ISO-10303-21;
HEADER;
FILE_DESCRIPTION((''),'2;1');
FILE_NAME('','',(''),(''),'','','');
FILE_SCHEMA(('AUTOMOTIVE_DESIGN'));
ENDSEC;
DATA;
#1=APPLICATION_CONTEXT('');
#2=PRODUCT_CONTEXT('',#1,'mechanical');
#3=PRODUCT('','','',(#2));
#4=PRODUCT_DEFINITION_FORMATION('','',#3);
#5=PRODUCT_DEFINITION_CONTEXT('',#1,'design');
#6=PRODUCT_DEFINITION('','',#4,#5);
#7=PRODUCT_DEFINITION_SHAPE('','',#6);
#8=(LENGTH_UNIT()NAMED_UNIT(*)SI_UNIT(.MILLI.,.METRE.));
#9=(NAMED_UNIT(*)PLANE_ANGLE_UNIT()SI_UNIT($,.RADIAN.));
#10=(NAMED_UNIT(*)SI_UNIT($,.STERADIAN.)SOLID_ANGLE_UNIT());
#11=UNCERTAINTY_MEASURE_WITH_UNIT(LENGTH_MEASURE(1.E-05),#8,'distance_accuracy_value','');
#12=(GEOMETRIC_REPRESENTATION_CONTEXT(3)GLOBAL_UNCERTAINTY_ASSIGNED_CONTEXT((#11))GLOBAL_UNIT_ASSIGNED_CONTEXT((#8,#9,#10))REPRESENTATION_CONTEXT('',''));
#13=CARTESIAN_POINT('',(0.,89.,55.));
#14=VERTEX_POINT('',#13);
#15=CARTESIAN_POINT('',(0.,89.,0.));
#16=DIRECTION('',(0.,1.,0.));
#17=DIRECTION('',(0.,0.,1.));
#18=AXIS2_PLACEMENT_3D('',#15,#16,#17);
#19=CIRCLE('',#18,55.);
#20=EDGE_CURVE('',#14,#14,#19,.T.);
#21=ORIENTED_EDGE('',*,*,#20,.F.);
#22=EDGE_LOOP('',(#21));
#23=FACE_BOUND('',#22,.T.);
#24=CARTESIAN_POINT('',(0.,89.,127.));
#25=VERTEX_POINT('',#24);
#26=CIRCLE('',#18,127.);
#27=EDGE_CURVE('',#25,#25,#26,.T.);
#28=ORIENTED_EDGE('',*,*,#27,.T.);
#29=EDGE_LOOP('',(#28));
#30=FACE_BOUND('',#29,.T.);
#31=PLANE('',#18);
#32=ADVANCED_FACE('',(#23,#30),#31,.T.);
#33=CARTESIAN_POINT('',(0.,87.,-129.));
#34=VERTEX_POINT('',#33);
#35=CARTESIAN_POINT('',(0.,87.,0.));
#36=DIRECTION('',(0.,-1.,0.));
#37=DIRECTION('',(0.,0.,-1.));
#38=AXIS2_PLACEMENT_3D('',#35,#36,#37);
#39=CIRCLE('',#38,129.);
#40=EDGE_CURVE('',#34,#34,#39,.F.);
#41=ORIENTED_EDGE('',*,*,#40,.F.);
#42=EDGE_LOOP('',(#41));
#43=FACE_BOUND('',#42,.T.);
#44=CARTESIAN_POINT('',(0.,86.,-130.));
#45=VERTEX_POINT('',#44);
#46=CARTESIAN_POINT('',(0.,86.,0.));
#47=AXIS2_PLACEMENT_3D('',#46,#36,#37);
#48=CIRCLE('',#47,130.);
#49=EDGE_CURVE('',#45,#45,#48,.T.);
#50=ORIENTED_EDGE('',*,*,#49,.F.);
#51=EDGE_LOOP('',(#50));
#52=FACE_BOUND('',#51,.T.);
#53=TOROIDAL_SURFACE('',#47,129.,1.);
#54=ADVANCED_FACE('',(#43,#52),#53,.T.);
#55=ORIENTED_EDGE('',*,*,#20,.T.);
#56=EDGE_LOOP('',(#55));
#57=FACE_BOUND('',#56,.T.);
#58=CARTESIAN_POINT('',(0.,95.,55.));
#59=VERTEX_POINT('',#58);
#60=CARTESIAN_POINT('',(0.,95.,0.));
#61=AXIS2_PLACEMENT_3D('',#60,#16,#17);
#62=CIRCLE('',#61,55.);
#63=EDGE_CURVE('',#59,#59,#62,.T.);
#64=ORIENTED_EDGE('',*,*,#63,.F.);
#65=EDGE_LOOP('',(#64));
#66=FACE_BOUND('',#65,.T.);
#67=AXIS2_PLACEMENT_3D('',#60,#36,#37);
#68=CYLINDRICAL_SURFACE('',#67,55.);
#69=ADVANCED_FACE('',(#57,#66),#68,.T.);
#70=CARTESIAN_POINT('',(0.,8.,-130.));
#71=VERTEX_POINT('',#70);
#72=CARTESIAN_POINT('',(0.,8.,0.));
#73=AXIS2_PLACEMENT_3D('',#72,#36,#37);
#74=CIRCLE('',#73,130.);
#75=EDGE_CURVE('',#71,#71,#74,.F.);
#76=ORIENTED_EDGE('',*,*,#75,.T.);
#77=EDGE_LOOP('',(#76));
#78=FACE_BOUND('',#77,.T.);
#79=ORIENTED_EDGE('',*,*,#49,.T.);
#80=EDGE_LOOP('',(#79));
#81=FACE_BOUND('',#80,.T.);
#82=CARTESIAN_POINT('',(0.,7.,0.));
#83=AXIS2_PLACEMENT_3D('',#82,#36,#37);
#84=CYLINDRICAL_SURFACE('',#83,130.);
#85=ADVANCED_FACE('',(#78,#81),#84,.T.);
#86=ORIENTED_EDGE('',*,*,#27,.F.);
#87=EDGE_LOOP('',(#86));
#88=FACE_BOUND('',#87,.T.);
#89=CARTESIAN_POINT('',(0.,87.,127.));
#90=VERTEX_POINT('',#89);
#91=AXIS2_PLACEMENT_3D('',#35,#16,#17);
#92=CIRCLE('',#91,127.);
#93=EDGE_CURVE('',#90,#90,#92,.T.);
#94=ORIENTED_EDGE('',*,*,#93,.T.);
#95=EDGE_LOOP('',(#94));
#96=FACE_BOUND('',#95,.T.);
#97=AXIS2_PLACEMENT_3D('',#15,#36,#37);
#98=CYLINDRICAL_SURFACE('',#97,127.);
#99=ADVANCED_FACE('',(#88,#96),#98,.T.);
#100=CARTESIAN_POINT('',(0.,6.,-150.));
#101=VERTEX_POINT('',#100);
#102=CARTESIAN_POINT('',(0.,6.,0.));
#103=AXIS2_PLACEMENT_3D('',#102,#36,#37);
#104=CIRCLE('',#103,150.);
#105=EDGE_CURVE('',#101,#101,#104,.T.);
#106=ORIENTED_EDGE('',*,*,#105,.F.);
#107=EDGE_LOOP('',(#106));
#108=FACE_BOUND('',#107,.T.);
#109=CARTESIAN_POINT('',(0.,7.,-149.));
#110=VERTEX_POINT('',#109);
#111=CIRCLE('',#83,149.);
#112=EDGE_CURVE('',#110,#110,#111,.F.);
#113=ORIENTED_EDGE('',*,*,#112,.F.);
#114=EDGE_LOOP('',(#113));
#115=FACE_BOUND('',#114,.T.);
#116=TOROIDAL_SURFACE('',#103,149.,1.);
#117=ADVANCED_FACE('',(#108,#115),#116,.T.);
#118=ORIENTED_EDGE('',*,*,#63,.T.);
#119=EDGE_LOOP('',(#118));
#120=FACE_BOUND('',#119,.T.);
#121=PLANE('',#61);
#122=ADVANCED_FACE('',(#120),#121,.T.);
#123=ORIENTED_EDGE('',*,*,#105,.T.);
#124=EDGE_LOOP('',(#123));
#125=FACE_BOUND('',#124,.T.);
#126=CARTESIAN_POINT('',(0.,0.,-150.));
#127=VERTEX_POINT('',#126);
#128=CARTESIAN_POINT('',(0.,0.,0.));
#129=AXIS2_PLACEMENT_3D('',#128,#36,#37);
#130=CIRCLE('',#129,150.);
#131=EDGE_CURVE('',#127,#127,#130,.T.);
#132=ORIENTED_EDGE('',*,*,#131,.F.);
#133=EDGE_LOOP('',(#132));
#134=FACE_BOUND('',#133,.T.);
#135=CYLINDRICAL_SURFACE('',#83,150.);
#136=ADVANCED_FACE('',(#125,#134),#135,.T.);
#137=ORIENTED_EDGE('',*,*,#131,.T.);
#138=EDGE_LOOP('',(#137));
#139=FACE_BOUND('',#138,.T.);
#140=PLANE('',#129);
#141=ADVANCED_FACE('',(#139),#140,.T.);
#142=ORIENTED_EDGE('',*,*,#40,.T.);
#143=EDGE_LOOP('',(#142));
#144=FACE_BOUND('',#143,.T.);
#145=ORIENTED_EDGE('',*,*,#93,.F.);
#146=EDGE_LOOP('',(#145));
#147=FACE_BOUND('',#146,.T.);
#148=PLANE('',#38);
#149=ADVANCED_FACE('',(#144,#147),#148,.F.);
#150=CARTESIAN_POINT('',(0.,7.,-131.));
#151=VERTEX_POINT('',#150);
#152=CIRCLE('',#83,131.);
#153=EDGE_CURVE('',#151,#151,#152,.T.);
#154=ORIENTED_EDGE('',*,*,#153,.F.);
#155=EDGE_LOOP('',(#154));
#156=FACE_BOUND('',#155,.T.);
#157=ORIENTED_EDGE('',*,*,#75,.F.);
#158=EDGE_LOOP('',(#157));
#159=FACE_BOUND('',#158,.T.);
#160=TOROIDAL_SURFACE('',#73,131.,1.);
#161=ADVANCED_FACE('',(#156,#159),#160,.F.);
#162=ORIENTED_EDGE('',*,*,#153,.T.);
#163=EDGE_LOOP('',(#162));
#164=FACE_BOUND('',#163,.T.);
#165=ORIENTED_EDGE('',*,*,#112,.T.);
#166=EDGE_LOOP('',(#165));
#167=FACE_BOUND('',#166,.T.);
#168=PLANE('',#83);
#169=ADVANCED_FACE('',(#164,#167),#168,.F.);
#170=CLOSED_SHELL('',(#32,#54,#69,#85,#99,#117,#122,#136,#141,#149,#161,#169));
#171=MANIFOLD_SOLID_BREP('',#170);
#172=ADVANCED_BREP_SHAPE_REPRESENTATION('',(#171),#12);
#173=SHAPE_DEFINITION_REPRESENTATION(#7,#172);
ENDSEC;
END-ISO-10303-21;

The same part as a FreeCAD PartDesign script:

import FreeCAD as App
import Part
import Sketcher

V = App.Vector
Q = App.Units.Quantity


def edges_at(feature, points):
    """Names of the edges that pass closest to the given points."""
    edges = feature.Shape.Edges
    near = lambda p: min(range(len(edges)), key=lambda i: edges[i].distToShape(Part.Vertex(*p))[0])
    return sorted({f"Edge{near(p) + 1}" for p in points})


def add_polygon(sketch, points):
    """Adds a closed chain of lines whose ends are joined by coincident constraints."""
    first, n = sketch.GeometryCount, len(points)
    for a, b in zip(points, points[1:] + points[:1]):
        sketch.addGeometry(Part.LineSegment(App.Vector(*a, 0), App.Vector(*b, 0)), False)
    for i in range(n):
        sketch.addConstraint(Sketcher.Constraint("Coincident", first + i, 2, first + (i + 1) % n, 1))

doc = App.newDocument("Part")
body = doc.addObject("PartDesign::Body", "Body")

# Sketch on XY plane
sketch1 = body.newObject("Sketcher::SketchObject", "Sketch")
sketch1.AttachmentSupport = (doc.getObject("XY_Plane"), [""])
sketch1.MapMode = "FlatFace"
add_polygon(sketch1, [(-150, 7), (-150, 0), (0, 0), (0, 87), (-130, 87), (-130, 7)])  # lines 0-5
sketch1.addConstraint([
    Sketcher.Constraint("Vertical", 0),
    Sketcher.Constraint("Horizontal", 1),
    Sketcher.Constraint("Vertical", 2),
    Sketcher.Constraint("Horizontal", 3),
    Sketcher.Constraint("Vertical", 4),
    Sketcher.Constraint("Horizontal", 5),
    Sketcher.Constraint("Coincident", 1, 2, -1, 1),
    Sketcher.Constraint("DistanceX", 1, 1, 1, 2, Q("150 mm")),
    Sketcher.Constraint("DistanceX", 3, 2, 3, 1, Q("130 mm")),
    Sketcher.Constraint("DistanceY", 0, 2, 0, 1, Q("7 mm")),
    Sketcher.Constraint("DistanceY", 2, 1, 2, 2, Q("87 mm")),
])
revolution = body.newObject("PartDesign::Revolution", "Revolution")
revolution.Profile = sketch1
revolution.ReferenceAxis = (sketch1, ["V_Axis"])
revolution.Angle = 360

# Sketch on XZ plane
sketch2 = body.newObject("Sketcher::SketchObject", "Sketch001")
sketch2.AttachmentSupport = (doc.getObject("XZ_Plane"), [""])
sketch2.MapMode = "FlatFace"
sketch2.AttachmentOffset = App.Placement(V(0, 0, -87), App.Rotation())
sketch2.addGeometry(Part.Circle(V(0, 0, 0), V(0, 0, 1), 127), False)
sketch2.addConstraint([
    Sketcher.Constraint("Coincident", 0, 3, -1, 1),
    Sketcher.Constraint("Diameter", 0, Q("254 mm")),
])
pad1 = body.newObject("PartDesign::Pad", "Pad")
pad1.Profile = sketch2
pad1.Length = 2
pad1.Reversed = True
doc.recompute()

fillet = body.newObject("PartDesign::Fillet", "Fillet")
fillet.Base = (pad1, edges_at(pad1, [(0, 87, 130), (0, 7, 130)]))
fillet.Radius = 1
doc.recompute()

fillet2 = body.newObject("PartDesign::Fillet", "Fillet001")
fillet2.Base = (fillet, edges_at(fillet, [(0, 7, 150)]))
fillet2.Radius = 1

# Sketch on XZ plane
sketch3 = body.newObject("Sketcher::SketchObject", "Sketch002")
sketch3.AttachmentSupport = (doc.getObject("XZ_Plane"), [""])
sketch3.MapMode = "FlatFace"
sketch3.AttachmentOffset = App.Placement(V(0, 0, -89), App.Rotation())
sketch3.addGeometry(Part.Circle(V(0, 0, 0), V(0, 0, 1), 55), False)
sketch3.addConstraint([
    Sketcher.Constraint("Coincident", 0, 3, -1, 1),
    Sketcher.Constraint("Diameter", 0, Q("110 mm")),
])
pad2 = body.newObject("PartDesign::Pad", "Pad001")
pad2.Profile = sketch3
pad2.Length = 6
pad2.Reversed = True

doc.recompute()
